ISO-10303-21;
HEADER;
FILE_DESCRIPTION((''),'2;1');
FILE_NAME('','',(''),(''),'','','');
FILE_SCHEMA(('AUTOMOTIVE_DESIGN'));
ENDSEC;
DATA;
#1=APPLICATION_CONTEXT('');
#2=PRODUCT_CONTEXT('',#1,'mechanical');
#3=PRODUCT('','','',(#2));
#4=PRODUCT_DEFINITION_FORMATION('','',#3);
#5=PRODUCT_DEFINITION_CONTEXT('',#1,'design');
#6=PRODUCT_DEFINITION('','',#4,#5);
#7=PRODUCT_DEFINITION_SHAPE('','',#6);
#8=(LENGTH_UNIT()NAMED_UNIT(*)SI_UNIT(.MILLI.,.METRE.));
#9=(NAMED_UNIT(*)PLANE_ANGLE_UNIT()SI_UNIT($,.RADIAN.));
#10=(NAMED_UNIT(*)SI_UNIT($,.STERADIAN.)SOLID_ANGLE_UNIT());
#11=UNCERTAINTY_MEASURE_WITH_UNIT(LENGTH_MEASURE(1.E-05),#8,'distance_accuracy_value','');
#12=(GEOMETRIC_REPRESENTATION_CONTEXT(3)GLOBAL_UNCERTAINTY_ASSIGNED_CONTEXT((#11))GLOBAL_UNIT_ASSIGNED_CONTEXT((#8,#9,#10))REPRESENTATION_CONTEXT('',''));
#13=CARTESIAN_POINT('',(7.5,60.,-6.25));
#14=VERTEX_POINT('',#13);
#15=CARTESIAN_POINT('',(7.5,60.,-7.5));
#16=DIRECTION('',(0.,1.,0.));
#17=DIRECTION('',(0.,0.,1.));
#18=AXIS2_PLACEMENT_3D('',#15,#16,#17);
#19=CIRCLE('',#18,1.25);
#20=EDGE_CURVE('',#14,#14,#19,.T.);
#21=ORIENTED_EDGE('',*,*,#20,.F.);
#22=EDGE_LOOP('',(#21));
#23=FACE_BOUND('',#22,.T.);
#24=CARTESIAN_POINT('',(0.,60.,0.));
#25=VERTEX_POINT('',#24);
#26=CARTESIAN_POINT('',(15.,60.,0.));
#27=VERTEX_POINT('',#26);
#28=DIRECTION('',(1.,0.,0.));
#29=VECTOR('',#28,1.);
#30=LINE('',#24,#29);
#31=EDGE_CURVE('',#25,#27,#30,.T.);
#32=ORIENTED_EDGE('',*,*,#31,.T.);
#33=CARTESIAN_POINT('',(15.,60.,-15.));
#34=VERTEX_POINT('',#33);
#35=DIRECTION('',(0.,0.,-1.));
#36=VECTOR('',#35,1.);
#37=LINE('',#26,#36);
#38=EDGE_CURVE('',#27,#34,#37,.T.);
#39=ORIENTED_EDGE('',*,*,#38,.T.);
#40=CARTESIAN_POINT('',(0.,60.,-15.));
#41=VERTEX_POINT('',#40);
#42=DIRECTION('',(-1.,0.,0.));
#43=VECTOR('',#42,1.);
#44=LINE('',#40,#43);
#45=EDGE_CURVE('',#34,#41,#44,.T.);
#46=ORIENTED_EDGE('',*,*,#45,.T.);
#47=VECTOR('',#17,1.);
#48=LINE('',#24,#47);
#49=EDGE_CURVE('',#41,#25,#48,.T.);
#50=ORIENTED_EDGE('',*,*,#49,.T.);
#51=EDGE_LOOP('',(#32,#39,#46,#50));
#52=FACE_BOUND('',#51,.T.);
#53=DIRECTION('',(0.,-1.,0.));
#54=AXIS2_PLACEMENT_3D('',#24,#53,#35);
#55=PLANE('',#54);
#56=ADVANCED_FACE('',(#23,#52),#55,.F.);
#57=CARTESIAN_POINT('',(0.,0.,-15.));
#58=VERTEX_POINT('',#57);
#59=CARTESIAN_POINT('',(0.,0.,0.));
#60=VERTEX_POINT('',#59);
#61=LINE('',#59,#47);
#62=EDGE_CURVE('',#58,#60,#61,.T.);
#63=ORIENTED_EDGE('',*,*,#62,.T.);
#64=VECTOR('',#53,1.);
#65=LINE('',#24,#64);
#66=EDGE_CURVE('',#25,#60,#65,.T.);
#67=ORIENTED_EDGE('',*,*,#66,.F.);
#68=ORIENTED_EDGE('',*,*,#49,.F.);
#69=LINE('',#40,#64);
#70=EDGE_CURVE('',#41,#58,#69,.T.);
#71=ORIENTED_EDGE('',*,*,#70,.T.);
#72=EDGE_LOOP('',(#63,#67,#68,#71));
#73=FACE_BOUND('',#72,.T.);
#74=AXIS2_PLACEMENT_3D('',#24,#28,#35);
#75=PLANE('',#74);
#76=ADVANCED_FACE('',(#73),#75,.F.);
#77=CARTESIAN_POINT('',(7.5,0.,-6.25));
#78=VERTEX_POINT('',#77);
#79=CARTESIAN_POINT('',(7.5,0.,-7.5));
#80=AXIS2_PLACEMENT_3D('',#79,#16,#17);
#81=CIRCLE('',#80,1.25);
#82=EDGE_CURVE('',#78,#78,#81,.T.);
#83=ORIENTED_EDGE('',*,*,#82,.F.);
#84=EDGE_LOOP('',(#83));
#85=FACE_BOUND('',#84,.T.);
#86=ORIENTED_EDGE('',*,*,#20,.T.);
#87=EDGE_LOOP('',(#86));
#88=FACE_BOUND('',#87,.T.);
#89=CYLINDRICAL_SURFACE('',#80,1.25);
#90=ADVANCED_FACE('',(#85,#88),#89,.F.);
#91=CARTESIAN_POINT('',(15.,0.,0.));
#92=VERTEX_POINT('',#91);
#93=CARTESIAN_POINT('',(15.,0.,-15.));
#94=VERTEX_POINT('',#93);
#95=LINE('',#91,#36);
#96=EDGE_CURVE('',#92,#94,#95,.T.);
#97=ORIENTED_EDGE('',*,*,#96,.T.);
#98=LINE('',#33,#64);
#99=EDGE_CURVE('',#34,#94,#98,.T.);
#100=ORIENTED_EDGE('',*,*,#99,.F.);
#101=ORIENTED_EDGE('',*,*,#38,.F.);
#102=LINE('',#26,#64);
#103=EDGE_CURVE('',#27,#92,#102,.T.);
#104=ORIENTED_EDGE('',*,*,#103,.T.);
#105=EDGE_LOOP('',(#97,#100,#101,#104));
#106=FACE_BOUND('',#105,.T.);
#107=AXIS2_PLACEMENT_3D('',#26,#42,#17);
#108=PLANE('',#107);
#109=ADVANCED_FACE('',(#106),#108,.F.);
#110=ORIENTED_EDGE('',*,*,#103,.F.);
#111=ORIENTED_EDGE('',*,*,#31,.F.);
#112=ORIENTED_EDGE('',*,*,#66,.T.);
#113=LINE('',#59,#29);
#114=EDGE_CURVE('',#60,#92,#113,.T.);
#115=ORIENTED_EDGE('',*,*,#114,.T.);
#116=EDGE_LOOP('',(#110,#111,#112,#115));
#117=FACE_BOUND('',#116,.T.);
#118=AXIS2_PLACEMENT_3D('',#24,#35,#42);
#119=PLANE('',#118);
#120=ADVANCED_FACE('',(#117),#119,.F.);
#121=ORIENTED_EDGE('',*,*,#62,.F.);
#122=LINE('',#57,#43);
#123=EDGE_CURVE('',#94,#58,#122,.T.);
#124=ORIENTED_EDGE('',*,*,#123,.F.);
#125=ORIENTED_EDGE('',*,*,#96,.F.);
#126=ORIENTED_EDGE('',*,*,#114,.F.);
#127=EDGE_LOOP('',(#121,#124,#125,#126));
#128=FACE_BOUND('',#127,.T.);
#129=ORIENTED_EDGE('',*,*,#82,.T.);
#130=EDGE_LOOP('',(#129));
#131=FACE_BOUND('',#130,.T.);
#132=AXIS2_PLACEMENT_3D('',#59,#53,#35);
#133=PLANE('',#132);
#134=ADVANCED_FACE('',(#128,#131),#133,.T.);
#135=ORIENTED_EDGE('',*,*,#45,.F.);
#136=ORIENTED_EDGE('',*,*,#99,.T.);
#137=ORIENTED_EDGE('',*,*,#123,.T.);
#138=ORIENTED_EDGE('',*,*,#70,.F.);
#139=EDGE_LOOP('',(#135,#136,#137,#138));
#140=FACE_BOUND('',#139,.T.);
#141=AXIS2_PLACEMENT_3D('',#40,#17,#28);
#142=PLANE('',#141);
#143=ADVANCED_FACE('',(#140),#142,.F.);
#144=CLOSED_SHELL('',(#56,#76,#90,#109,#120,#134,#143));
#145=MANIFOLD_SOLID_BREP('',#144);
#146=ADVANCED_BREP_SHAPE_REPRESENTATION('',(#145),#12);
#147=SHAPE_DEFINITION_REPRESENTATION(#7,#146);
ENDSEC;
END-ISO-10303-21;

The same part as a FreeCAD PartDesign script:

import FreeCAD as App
import Part
import Sketcher
from FreeCAD import Vector
Q = App.Units.Quantity


def add_polygon(sketch, points):
    """Adds a closed chain of lines whose ends are joined by coincident constraints."""
    first, n = sketch.GeometryCount, len(points)
    for a, b in zip(points, points[1:] + points[:1]):
        sketch.addGeometry(Part.LineSegment(App.Vector(*a, 0), App.Vector(*b, 0)), False)
    for i in range(n):
        sketch.addConstraint(Sketcher.Constraint("Coincident", first + i, 2, first + (i + 1) % n, 1))

doc = App.newDocument("Part")
body = doc.addObject("PartDesign::Body", "Body")

# Sketch on XZ plane
sketch1 = body.newObject("Sketcher::SketchObject", "Sketch")
sketch1.AttachmentSupport = (doc.getObject("XZ_Plane"), [""])
sketch1.MapMode = "FlatFace"
add_polygon(sketch1, [(0, -15), (0, 0), (15, 0), (15, -15)])  # lines 0-3
sketch1.addConstraint(Sketcher.Constraint("Vertical", 0))
sketch1.addConstraint(Sketcher.Constraint("Horizontal", 1))
sketch1.addConstraint(Sketcher.Constraint("Vertical", 2))
sketch1.addConstraint(Sketcher.Constraint("Horizontal", 3))
sketch1.addConstraint(Sketcher.Constraint("Coincident", 0, 2, -1, 1))
sketch1.addConstraint(Sketcher.Constraint("Equal", 3, 0))
sketch1.addConstraint(Sketcher.Constraint("DistanceX", 1, 1, 1, 2, Q("15 mm")))
pad1 = body.newObject("PartDesign::Pad", "Pad")
pad1.Profile = sketch1
pad1.Length = 60
pad1.Reversed = True

# Sketch on XZ plane
sketch2 = body.newObject("Sketcher::SketchObject", "Sketch001")
sketch2.AttachmentSupport = (doc.getObject("XZ_Plane"), [""])
sketch2.MapMode = "FlatFace"
sketch2.AttachmentOffset = App.Placement(Vector(0, 0, -60), App.Rotation())
sketch2.addGeometry(Part.Circle(Vector(7.5, -7.5, 0), Vector(0, 0, 1), 1.2), False)
sketch2.addConstraint(Sketcher.Constraint("Diameter", 0, Q("2.5 mm")))
sketch2.addConstraint(Sketcher.Constraint("DistanceX", -1, 1, 0, 3, Q("7.5 mm")))
sketch2.addConstraint(Sketcher.Constraint("DistanceY", 0, 3, -1, 1, Q("7.5 mm")))
pocket1 = body.newObject("PartDesign::Pocket", "Pocket")
pocket1.Profile = sketch2
pocket1.Type = "ThroughAll"
pocket1.Reversed = True

doc.recompute()
